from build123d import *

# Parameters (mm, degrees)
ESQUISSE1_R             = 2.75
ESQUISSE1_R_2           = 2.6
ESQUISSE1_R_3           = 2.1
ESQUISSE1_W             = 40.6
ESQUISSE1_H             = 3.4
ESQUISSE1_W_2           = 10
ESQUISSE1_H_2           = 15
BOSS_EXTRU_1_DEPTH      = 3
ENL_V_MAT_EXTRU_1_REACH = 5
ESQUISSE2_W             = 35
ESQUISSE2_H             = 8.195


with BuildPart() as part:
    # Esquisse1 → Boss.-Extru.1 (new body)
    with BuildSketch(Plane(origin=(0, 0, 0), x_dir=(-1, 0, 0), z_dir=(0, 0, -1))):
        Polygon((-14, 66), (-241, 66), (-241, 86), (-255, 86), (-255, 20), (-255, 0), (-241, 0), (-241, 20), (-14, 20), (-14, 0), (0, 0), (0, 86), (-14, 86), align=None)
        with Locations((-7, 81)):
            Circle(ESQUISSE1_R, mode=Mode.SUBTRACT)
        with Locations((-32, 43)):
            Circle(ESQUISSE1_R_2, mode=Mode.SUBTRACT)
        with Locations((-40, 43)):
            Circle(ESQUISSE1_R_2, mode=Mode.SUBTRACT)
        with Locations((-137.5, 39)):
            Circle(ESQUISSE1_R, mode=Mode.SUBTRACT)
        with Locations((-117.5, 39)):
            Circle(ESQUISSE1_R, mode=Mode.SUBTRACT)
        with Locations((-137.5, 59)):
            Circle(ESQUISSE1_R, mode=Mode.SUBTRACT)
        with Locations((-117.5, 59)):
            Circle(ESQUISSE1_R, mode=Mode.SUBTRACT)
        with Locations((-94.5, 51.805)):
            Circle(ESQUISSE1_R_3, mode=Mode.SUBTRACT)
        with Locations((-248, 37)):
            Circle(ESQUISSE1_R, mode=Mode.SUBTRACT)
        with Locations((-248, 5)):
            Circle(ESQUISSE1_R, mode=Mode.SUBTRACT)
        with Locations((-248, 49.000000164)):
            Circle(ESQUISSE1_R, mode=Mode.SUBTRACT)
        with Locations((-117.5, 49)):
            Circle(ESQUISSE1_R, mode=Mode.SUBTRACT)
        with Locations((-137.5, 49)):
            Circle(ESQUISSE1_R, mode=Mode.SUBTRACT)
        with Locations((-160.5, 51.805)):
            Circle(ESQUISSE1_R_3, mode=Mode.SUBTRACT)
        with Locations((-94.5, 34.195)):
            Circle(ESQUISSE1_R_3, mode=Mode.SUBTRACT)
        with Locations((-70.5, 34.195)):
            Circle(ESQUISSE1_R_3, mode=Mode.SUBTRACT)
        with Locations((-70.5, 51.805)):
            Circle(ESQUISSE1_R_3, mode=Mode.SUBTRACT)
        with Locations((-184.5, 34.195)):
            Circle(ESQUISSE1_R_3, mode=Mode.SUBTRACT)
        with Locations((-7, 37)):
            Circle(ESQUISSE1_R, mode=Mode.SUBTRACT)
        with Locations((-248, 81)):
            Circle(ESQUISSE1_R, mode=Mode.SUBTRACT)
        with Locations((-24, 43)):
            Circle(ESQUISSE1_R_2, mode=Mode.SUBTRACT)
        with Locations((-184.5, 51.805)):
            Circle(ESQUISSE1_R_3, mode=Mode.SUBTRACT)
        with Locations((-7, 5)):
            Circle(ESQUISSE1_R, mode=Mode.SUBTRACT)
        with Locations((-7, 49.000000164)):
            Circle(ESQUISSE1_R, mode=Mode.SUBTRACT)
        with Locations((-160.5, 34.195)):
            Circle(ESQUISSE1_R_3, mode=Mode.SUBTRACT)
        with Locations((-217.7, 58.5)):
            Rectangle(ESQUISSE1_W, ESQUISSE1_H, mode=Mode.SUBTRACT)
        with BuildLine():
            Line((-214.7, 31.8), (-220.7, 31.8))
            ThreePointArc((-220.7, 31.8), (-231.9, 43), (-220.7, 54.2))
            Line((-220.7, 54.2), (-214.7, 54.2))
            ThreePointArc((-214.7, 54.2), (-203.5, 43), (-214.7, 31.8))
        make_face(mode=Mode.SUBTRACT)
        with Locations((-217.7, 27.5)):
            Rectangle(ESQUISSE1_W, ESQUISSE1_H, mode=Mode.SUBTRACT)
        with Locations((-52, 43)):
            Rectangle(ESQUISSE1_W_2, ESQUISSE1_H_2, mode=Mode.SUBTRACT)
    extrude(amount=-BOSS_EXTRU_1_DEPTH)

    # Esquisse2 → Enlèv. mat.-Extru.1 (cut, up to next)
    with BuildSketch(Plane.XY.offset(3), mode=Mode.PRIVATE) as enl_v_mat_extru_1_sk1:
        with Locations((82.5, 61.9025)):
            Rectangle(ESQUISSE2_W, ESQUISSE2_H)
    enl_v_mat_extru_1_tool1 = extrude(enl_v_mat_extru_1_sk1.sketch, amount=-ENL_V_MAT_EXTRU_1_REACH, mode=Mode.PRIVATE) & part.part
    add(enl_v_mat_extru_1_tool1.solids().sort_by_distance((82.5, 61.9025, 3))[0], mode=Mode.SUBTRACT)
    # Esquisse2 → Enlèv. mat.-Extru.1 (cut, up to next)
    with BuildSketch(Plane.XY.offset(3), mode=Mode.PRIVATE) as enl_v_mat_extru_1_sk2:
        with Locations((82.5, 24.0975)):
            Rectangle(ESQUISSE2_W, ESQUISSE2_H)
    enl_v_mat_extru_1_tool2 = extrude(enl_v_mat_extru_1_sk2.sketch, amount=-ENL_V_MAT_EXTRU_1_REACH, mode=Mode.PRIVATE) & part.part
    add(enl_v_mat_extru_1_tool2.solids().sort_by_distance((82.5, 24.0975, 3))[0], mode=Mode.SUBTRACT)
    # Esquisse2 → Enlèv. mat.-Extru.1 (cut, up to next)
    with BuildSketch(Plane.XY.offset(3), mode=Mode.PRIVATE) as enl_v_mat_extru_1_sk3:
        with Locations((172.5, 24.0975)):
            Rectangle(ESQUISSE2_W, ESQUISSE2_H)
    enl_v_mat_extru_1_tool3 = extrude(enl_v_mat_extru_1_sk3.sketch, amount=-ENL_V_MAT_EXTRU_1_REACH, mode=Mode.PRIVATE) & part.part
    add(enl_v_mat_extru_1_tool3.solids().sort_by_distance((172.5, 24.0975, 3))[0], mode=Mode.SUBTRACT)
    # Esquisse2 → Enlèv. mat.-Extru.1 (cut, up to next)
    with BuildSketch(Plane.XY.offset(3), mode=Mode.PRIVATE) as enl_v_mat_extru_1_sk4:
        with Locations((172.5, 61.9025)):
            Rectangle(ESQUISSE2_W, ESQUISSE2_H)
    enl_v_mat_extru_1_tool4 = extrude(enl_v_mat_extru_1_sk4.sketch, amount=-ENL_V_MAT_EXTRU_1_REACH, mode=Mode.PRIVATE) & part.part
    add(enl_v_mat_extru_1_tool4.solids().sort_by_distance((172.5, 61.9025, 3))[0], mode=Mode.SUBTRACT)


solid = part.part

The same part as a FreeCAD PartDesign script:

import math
import FreeCAD as App
import Part
import Sketcher
from FreeCAD import Vector

doc = App.newDocument("Part")
body = doc.addObject("PartDesign::Body", "Body")

sketch1 = body.newObject("Sketcher::SketchObject", "Sketch")
sketch1.AttachmentSupport = (doc.getObject("XY_Plane"), [""])
sketch1.MapMode = "FlatFace"
sketch1.addGeometry([
    Part.LineSegment(Vector(14, 66, 0), Vector(241, 66, 0)),
    Part.LineSegment(Vector(241, 66, 0), Vector(241, 86, 0)),
    Part.LineSegment(Vector(241, 86, 0), Vector(255, 86, 0)),
    Part.LineSegment(Vector(255, 86, 0), Vector(255, 0, 0)),
    Part.LineSegment(Vector(255, 0, 0), Vector(241, 0, 0)),
    Part.LineSegment(Vector(241, 0, 0), Vector(241, 20, 0)),
    Part.LineSegment(Vector(241, 20, 0), Vector(14, 20, 0)),
    Part.LineSegment(Vector(14, 20, 0), Vector(14, 0, 0)),
    Part.LineSegment(Vector(14, 0, 0), Vector(0, 0, 0)),
    Part.LineSegment(Vector(0, 0, 0), Vector(0, 86, 0)),
    Part.LineSegment(Vector(0, 86, 0), Vector(14, 86, 0)),
    Part.LineSegment(Vector(14, 86, 0), Vector(14, 66, 0)),
    Part.Circle(Vector(248, 5, 0), Vector(0, 0, 1), 2.75),
    Part.LineSegment(Vector(197.4, 25.8, 0), Vector(238, 25.8, 0)),
    Part.LineSegment(Vector(238, 25.8, 0), Vector(238, 29.2, 0)),
    Part.LineSegment(Vector(238, 29.2, 0), Vector(197.4, 29.2, 0)),
    Part.LineSegment(Vector(197.4, 29.2, 0), Vector(197.4, 25.8, 0)),
    Part.Circle(Vector(248, 37, 0), Vector(0, 0, 1), 2.75),
    Part.Circle(Vector(184.5, 34.195, 0), Vector(0, 0, 1), 2.1),
    Part.Circle(Vector(160.5, 34.195, 0), Vector(0, 0, 1), 2.1),
    Part.Circle(Vector(137.5, 39, 0), Vector(0, 0, 1), 2.75),
    Part.Circle(Vector(7, 5, 0), Vector(0, 0, 1), 2.75),
    Part.Circle(Vector(117.5, 39, 0), Vector(0, 0, 1), 2.75),
    Part.Circle(Vector(94.5, 34.195, 0), Vector(0, 0, 1), 2.1),
    Part.Circle(Vector(70.5, 34.195, 0), Vector(0, 0, 1), 2.1),
    Part.Circle(Vector(7, 37, 0), Vector(0, 0, 1), 2.75),
    Part.Circle(Vector(248, 49, 0), Vector(0, 0, 1), 2.75),
    Part.ArcOfCircle(Part.Circle(Vector(214.7, 43, 0), Vector(0, 0, 1), 11.2), math.radians(90), math.radians(270)),
    Part.LineSegment(Vector(214.7, 31.8, 0), Vector(220.7, 31.8, 0)),
    Part.ArcOfCircle(Part.Circle(Vector(220.7, 43, 0), Vector(0, 0, 1), 11.2), math.radians(-90), math.radians(90)),
    Part.LineSegment(Vector(220.7, 54.2, 0), Vector(214.7, 54.2, 0)),
    Part.LineSegment(Vector(197.4, 56.8, 0), Vector(238, 56.8, 0)),
    Part.LineSegment(Vector(238, 56.8, 0), Vector(238, 60.2, 0)),
    Part.LineSegment(Vector(238, 60.2, 0), Vector(197.4, 60.2, 0)),
    Part.LineSegment(Vector(197.4, 60.2, 0), Vector(197.4, 56.8, 0)),
    Part.Circle(Vector(184.5, 51.805, 0), Vector(0, 0, 1), 2.1),
    Part.Circle(Vector(160.5, 51.805, 0), Vector(0, 0, 1), 2.1),
    Part.Circle(Vector(137.5, 49, 0), Vector(0, 0, 1), 2.75),
    Part.Circle(Vector(137.5, 59, 0), Vector(0, 0, 1), 2.75),
    Part.Circle(Vector(248, 81, 0), Vector(0, 0, 1), 2.75),
    Part.Circle(Vector(117.5, 49, 0), Vector(0, 0, 1), 2.75),
    Part.Circle(Vector(94.5, 51.805, 0), Vector(0, 0, 1), 2.1),
    Part.Circle(Vector(70.5, 51.805, 0), Vector(0, 0, 1), 2.1),
    Part.Circle(Vector(117.5, 59, 0), Vector(0, 0, 1), 2.75),
    Part.LineSegment(Vector(47, 35.5, 0), Vector(57, 35.5, 0)),
    Part.LineSegment(Vector(57, 35.5, 0), Vector(57, 50.5, 0)),
    Part.LineSegment(Vector(57, 50.5, 0), Vector(47, 50.5, 0)),
    Part.LineSegment(Vector(47, 50.5, 0), Vector(47, 35.5, 0)),
    Part.Circle(Vector(40, 43, 0), Vector(0, 0, 1), 2.6),
    Part.Circle(Vector(32, 43, 0), Vector(0, 0, 1), 2.6),
    Part.Circle(Vector(24, 43, 0), Vector(0, 0, 1), 2.6),
    Part.Circle(Vector(7, 49, 0), Vector(0, 0, 1), 2.75),
    Part.Circle(Vector(7, 81, 0), Vector(0, 0, 1), 2.75),
], False)
sketch1.addConstraint([
    Sketcher.Constraint("Coincident", 0, 2, 1, 1),
    Sketcher.Constraint("Coincident", 1, 2, 2, 1),
    Sketcher.Constraint("Coincident", 2, 2, 3, 1),
    Sketcher.Constraint("Coincident", 3, 2, 4, 1),
    Sketcher.Constraint("Coincident", 4, 2, 5, 1),
    Sketcher.Constraint("Coincident", 5, 2, 6, 1),
    Sketcher.Constraint("Coincident", 6, 2, 7, 1),
    Sketcher.Constraint("Coincident", 7, 2, 8, 1),
    Sketcher.Constraint("Coincident", 8, 2, 9, 1),
    Sketcher.Constraint("Coincident", 9, 2, 10, 1),
    Sketcher.Constraint("Coincident", 10, 2, 11, 1),
    Sketcher.Constraint("Coincident", 11, 2, 0, 1),
    Sketcher.Constraint("Coincident", 13, 2, 14, 1),
    Sketcher.Constraint("Coincident", 14, 2, 15, 1),
    Sketcher.Constraint("Coincident", 15, 2, 16, 1),
    Sketcher.Constraint("Coincident", 16, 2, 13, 1),
    Sketcher.Constraint("Tangent", 27, 2, 28, 1),
    Sketcher.Constraint("Tangent", 28, 2, 29, 1),
    Sketcher.Constraint("Tangent", 29, 2, 30, 1),
    Sketcher.Constraint("Tangent", 30, 2, 27, 1),
    Sketcher.Constraint("Coincident", 31, 2, 32, 1),
    Sketcher.Constraint("Coincident", 32, 2, 33, 1),
    Sketcher.Constraint("Coincident", 33, 2, 34, 1),
    Sketcher.Constraint("Coincident", 34, 2, 31, 1),
    Sketcher.Constraint("Coincident", 44, 2, 45, 1),
    Sketcher.Constraint("Coincident", 45, 2, 46, 1),
    Sketcher.Constraint("Coincident", 46, 2, 47, 1),
    Sketcher.Constraint("Coincident", 47, 2, 44, 1),
    Sketcher.Constraint("Horizontal", 0),
    Sketcher.Constraint("Vertical", 1),
    Sketcher.Constraint("Horizontal", 2),
    Sketcher.Constraint("Vertical", 3),
    Sketcher.Constraint("Horizontal", 4),
    Sketcher.Constraint("Vertical", 5),
    Sketcher.Constraint("Horizontal", 6),
    Sketcher.Constraint("Vertical", 7),
    Sketcher.Constraint("Horizontal", 8),
    Sketcher.Constraint("Vertical", 9),
    Sketcher.Constraint("Horizontal", 10),
    Sketcher.Constraint("Vertical", 11),
    Sketcher.Constraint("Horizontal", 13),
    Sketcher.Constraint("Vertical", 14),
    Sketcher.Constraint("Horizontal", 15),
    Sketcher.Constraint("Vertical", 16),
    Sketcher.Constraint("Horizontal", 28),
    Sketcher.Constraint("Horizontal", 30),
    Sketcher.Constraint("Horizontal", 31),
    Sketcher.Constraint("Vertical", 32),
    Sketcher.Constraint("Horizontal", 33),
    Sketcher.Constraint("Vertical", 34),
    Sketcher.Constraint("Horizontal", 44),
    Sketcher.Constraint("Vertical", 45),
    Sketcher.Constraint("Horizontal", 46),
    Sketcher.Constraint("Vertical", 47),
    Sketcher.Constraint("Coincident", 8, 2, -1, 1),
    Sketcher.Constraint("Equal", 12, 17),
    Sketcher.Constraint("Equal", 18, 19),
    Sketcher.Constraint("Equal", 17, 20),
    Sketcher.Constraint("Equal", 20, 21),
    Sketcher.Constraint("Equal", 21, 22),
    Sketcher.Constraint("Equal", 19, 23),
    Sketcher.Constraint("Equal", 23, 24),
    Sketcher.Constraint("Equal", 22, 25),
    Sketcher.Constraint("Equal", 25, 26),
    Sketcher.Constraint("Equal", 24, 35),
    Sketcher.Constraint("Equal", 35, 36),
    Sketcher.Constraint("Equal", 26, 37),
    Sketcher.Constraint("Equal", 37, 38),
    Sketcher.Constraint("Equal", 38, 39),
    Sketcher.Constraint("Equal", 39, 40),
    Sketcher.Constraint("Equal", 36, 41),
    Sketcher.Constraint("Equal", 41, 42),
    Sketcher.Constraint("Equal", 40, 43),
    Sketcher.Constraint("Equal", 48, 49),
    Sketcher.Constraint("Equal", 49, 50),
    Sketcher.Constraint("Equal", 43, 51),
    Sketcher.Constraint("Equal", 51, 52),
    Sketcher.Constraint("PointOnObject", 3, 2, -1),
    Sketcher.Constraint("Horizontal", 18, 3, 19, 3),
    Sketcher.Constraint("Horizontal", 12, 3, 21, 3),
    Sketcher.Constraint("Horizontal", 20, 3, 22, 3),
    Sketcher.Constraint("Horizontal", 19, 3, 23, 3),
    Sketcher.Constraint("Horizontal", 23, 3, 24, 3),
    Sketcher.Constraint("Horizontal", 17, 3, 25, 3),
    Sketcher.Constraint("Horizontal", 35, 3, 36, 3),
    Sketcher.Constraint("Horizontal", 26, 3, 37, 3),
    Sketcher.Constraint("Horizontal", 37, 3, 40, 3),
    Sketcher.Constraint("Horizontal", 36, 3, 41, 3),
    Sketcher.Constraint("Horizontal", 41, 3, 42, 3),
    Sketcher.Constraint("Horizontal", 38, 3, 43, 3),
    Sketcher.Constraint("Horizontal", 29, 3, 48, 3),
    Sketcher.Constraint("Horizontal", 48, 3, 49, 3),
    Sketcher.Constraint("Horizontal", 49, 3, 50, 3),
    Sketcher.Constraint("Horizontal", 40, 3, 51, 3),
    Sketcher.Constraint("Horizontal", 39, 3, 52, 3),
    Sketcher.Constraint("Horizontal", 2, 2, 9, 2),
    Sketcher.Constraint("Vertical", 12, 3, 17, 3),
    Sketcher.Constraint("Vertical", 21, 3, 25, 3),
    Sketcher.Constraint("Vertical", 17, 3, 26, 3),
    Sketcher.Constraint("Vertical", 18, 3, 35, 3),
    Sketcher.Constraint("Vertical", 19, 3, 36, 3),
    Sketcher.Constraint("Vertical", 20, 3, 37, 3),
    Sketcher.Constraint("Vertical", 37, 3, 38, 3),
    Sketcher.Constraint("Vertical", 26, 3, 39, 3),
    Sketcher.Constraint("Vertical", 22, 3, 40, 3),
    Sketcher.Constraint("Vertical", 23, 3, 41, 3),
    Sketcher.Constraint("Vertical", 24, 3, 42, 3),
    Sketcher.Constraint("Vertical", 40, 3, 43, 3),
    Sketcher.Constraint("Vertical", 25, 3, 51, 3),
    Sketcher.Constraint("Vertical", 51, 3, 52, 3),
    Sketcher.Constraint("Vertical", 1, 2, 4, 2),
    Sketcher.Constraint("Vertical", 7, 2, 10, 2),
    Sketcher.Constraint("Vertical", 14, 2, 31, 2),
    Sketcher.Constraint("Vertical", 16, 2, 33, 2),
    Sketcher.Constraint("Equal", 4, 8),
    Sketcher.Constraint("Equal", 1, 5),
    Sketcher.Constraint("Equal", 16, 32),
    Sketcher.Constraint("Diameter", 12, 5.5),
    Sketcher.Constraint("Diameter", 18, 4.2),
    Sketcher.Constraint("Diameter", 48, 5.2),
    Sketcher.Constraint("Radius", 27, 11.2),
    Sketcher.Constraint("DistanceX", 0, 1, 0, 2, 227.0),
    Sketcher.Constraint("DistanceX", 2, 1, 2, 2, 14.0),
    Sketcher.Constraint("DistanceX", 28, 1, 28, 2, 6.0),
    Sketcher.Constraint("DistanceX", 44, 1, 44, 2, 10.0),
    Sketcher.Constraint("DistanceY", 1, 1, 1, 2, 20.0),
    Sketcher.Constraint("DistanceY", 3, 2, 3, 1, 86.0),
    Sketcher.Constraint("DistanceY", 45, 1, 45, 2, 15.0),
    Sketcher.Constraint("DistanceX", 13, 1, 13, 2, 40.6),
    Sketcher.Constraint("DistanceY", 14, 1, 14, 2, 3.4),
    Sketcher.Constraint("DistanceX", -1, 1, 12, 3, 248.0),
    Sketcher.Constraint("DistanceY", -1, 1, 12, 3, 5.0),
    Sketcher.Constraint("DistanceY", -1, 1, 17, 3, 37.0),
    Sketcher.Constraint("DistanceY", -1, 1, 20, 3, 39.0),
    Sketcher.Constraint("DistanceX", -1, 1, 21, 3, 7.0),
    Sketcher.Constraint("DistanceY", -1, 1, 26, 3, 49.0),
    Sketcher.Constraint("DistanceY", -1, 1, 27, 3, 43.0),
    Sketcher.Constraint("DistanceY", -1, 1, 38, 3, 59.0),
    Sketcher.Constraint("DistanceY", -1, 1, 39, 3, 81.0),
    Sketcher.Constraint("DistanceX", -1, 1, 48, 3, 40.0),
    Sketcher.Constraint("DistanceX", -1, 1, 49, 3, 32.0),
    Sketcher.Constraint("DistanceX", -1, 1, 50, 3, 24.0),
    Sketcher.Constraint("DistanceX", -1, 1, 13, 2, 238.0),
    Sketcher.Constraint("DistanceX", -1, 1, 44, 2, 57.0),
    Sketcher.Constraint("DistanceX", 19, 3, 18, 3, 24.0),
    Sketcher.Constraint("DistanceX", 20, 3, 19, 3, 23.0),
    Sketcher.Constraint("DistanceX", 22, 3, 20, 3, 20.0),
    Sketcher.Constraint("DistanceX", 23, 3, 22, 3, 23.0),
    Sketcher.Constraint("DistanceX", 24, 3, 23, 3, 24.0),
    Sketcher.Constraint("DistanceY", 16, 2, 27, 2, 6.0),
    Sketcher.Constraint("DistanceY", 29, 2, 32, 2, 6.0),
    Sketcher.Constraint("DistanceX", -1, 1, 18, 3, 184.5),
    Sketcher.Constraint("DistanceX", -1, 1, 27, 3, 214.7),
    Sketcher.Constraint("DistanceY", -1, 1, 44, 2, 35.5),
    Sketcher.Constraint("DistanceY", 18, 3, 35, 3, 17.61),
    Sketcher.Constraint("DistanceY", -1, 1, 18, 3, 34.195),
])
pad1 = body.newObject("PartDesign::Pad", "Pad")
pad1.Profile = sketch1
pad1.Length = 3

sketch2 = body.newObject("Sketcher::SketchObject", "Sketch001")
sketch2.AttachmentSupport = (doc.getObject("XY_Plane"), [""])
sketch2.MapMode = "FlatFace"
sketch2.AttachmentOffset = App.Placement(Vector(0, 0, 3), App.Rotation())
sketch2.addGeometry([
    Part.LineSegment(Vector(65, 66, 0), Vector(65, 57.805, 0)),
    Part.LineSegment(Vector(65, 57.805, 0), Vector(100, 57.805, 0)),
    Part.LineSegment(Vector(100, 57.805, 0), Vector(100, 66, 0)),
    Part.LineSegment(Vector(100, 66, 0), Vector(65, 66, 0)),
], False)
sketch2.addConstraint([
    Sketcher.Constraint("Coincident", 0, 2, 1, 1),
    Sketcher.Constraint("Coincident", 1, 2, 2, 1),
    Sketcher.Constraint("Coincident", 2, 2, 3, 1),
    Sketcher.Constraint("Coincident", 3, 2, 0, 1),
    Sketcher.Constraint("Vertical", 0),
    Sketcher.Constraint("Horizontal", 1),
    Sketcher.Constraint("Vertical", 2),
    Sketcher.Constraint("Horizontal", 3),
    Sketcher.Constraint("DistanceX", 1, 1, 1, 2, 35.0),
    Sketcher.Constraint("DistanceX", -1, 1, 0, 2, 65.0),
    Sketcher.Constraint("DistanceY", -1, 1, 2, 2, 66.0),
    Sketcher.Constraint("DistanceY", 0, 2, 0, 1, 8.195),
])
pocket1 = body.newObject("PartDesign::Pocket", "Pocket")
pocket1.Profile = sketch2
pocket1.Type = "UpToFirst"

sketch3 = body.newObject("Sketcher::SketchObject", "Sketch002")
sketch3.AttachmentSupport = (doc.getObject("XY_Plane"), [""])
sketch3.MapMode = "FlatFace"
sketch3.AttachmentOffset = App.Placement(Vector(0, 0, 3), App.Rotation())
sketch3.addGeometry([
    Part.LineSegment(Vector(65, 28.195, 0), Vector(65, 20, 0)),
    Part.LineSegment(Vector(65, 20, 0), Vector(100, 20, 0)),
    Part.LineSegment(Vector(100, 20, 0), Vector(100, 28.195, 0)),
    Part.LineSegment(Vector(100, 28.195, 0), Vector(65, 28.195, 0)),
], False)
sketch3.addConstraint([
    Sketcher.Constraint("Coincident", 0, 2, 1, 1),
    Sketcher.Constraint("Coincident", 1, 2, 2, 1),
    Sketcher.Constraint("Coincident", 2, 2, 3, 1),
    Sketcher.Constraint("Coincident", 3, 2, 0, 1),
    Sketcher.Constraint("Vertical", 0),
    Sketcher.Constraint("Horizontal", 1),
    Sketcher.Constraint("Vertical", 2),
    Sketcher.Constraint("Horizontal", 3),
    Sketcher.Constraint("DistanceX", 1, 1, 1, 2, 35.0),
    Sketcher.Constraint("DistanceX", -1, 1, 0, 2, 65.0),
    Sketcher.Constraint("DistanceY", -1, 1, 0, 2, 20.0),
    Sketcher.Constraint("DistanceY", 0, 2, 0, 1, 8.195),
])
pocket2 = body.newObject("PartDesign::Pocket", "Pocket001")
pocket2.Profile = sketch3
pocket2.Type = "UpToFirst"

sketch4 = body.newObject("Sketcher::SketchObject", "Sketch003")
sketch4.AttachmentSupport = (doc.getObject("XY_Plane"), [""])
sketch4.MapMode = "FlatFace"
sketch4.AttachmentOffset = App.Placement(Vector(0, 0, 3), App.Rotation())
sketch4.addGeometry([
    Part.LineSegment(Vector(155, 28.195, 0), Vector(155, 20, 0)),
    Part.LineSegment(Vector(155, 20, 0), Vector(190, 20, 0)),
    Part.LineSegment(Vector(190, 20, 0), Vector(190, 28.195, 0)),
    Part.LineSegment(Vector(190, 28.195, 0), Vector(155, 28.195, 0)),
], False)
sketch4.addConstraint([
    Sketcher.Constraint("Coincident", 0, 2, 1, 1),
    Sketcher.Constraint("Coincident", 1, 2, 2, 1),
    Sketcher.Constraint("Coincident", 2, 2, 3, 1),
    Sketcher.Constraint("Coincident", 3, 2, 0, 1),
    Sketcher.Constraint("Vertical", 0),
    Sketcher.Constraint("Horizontal", 1),
    Sketcher.Constraint("Vertical", 2),
    Sketcher.Constraint("Horizontal", 3),
    Sketcher.Constraint("DistanceX", 1, 1, 1, 2, 35.0),
    Sketcher.Constraint("DistanceX", -1, 1, 0, 2, 155.0),
    Sketcher.Constraint("DistanceY", -1, 1, 0, 2, 20.0),
    Sketcher.Constraint("DistanceY", 0, 2, 0, 1, 8.195),
])
pocket3 = body.newObject("PartDesign::Pocket", "Pocket002")
pocket3.Profile = sketch4
pocket3.Type = "UpToFirst"

sketch5 = body.newObject("Sketcher::SketchObject", "Sketch004")
sketch5.AttachmentSupport = (doc.getObject("XY_Plane"), [""])
sketch5.MapMode = "FlatFace"
sketch5.AttachmentOffset = App.Placement(Vector(0, 0, 3), App.Rotation())
sketch5.addGeometry([
    Part.LineSegment(Vector(155, 66, 0), Vector(155, 57.805, 0)),
    Part.LineSegment(Vector(155, 57.805, 0), Vector(190, 57.805, 0)),
    Part.LineSegment(Vector(190, 57.805, 0), Vector(190, 66, 0)),
    Part.LineSegment(Vector(190, 66, 0), Vector(155, 66, 0)),
], False)
sketch5.addConstraint([
    Sketcher.Constraint("Coincident", 0, 2, 1, 1),
    Sketcher.Constraint("Coincident", 1, 2, 2, 1),
    Sketcher.Constraint("Coincident", 2, 2, 3, 1),
    Sketcher.Constraint("Coincident", 3, 2, 0, 1),
    Sketcher.Constraint("Vertical", 0),
    Sketcher.Constraint("Horizontal", 1),
    Sketcher.Constraint("Vertical", 2),
    Sketcher.Constraint("Horizontal", 3),
    Sketcher.Constraint("DistanceX", 1, 1, 1, 2, 35.0),
    Sketcher.Constraint("DistanceX", -1, 1, 0, 2, 155.0),
    Sketcher.Constraint("DistanceY", -1, 1, 2, 2, 66.0),
    Sketcher.Constraint("DistanceY", 0, 2, 0, 1, 8.195),
])
pocket4 = body.newObject("PartDesign::Pocket", "Pocket003")
pocket4.Profile = sketch5
pocket4.Type = "UpToFirst"

doc.recompute()
